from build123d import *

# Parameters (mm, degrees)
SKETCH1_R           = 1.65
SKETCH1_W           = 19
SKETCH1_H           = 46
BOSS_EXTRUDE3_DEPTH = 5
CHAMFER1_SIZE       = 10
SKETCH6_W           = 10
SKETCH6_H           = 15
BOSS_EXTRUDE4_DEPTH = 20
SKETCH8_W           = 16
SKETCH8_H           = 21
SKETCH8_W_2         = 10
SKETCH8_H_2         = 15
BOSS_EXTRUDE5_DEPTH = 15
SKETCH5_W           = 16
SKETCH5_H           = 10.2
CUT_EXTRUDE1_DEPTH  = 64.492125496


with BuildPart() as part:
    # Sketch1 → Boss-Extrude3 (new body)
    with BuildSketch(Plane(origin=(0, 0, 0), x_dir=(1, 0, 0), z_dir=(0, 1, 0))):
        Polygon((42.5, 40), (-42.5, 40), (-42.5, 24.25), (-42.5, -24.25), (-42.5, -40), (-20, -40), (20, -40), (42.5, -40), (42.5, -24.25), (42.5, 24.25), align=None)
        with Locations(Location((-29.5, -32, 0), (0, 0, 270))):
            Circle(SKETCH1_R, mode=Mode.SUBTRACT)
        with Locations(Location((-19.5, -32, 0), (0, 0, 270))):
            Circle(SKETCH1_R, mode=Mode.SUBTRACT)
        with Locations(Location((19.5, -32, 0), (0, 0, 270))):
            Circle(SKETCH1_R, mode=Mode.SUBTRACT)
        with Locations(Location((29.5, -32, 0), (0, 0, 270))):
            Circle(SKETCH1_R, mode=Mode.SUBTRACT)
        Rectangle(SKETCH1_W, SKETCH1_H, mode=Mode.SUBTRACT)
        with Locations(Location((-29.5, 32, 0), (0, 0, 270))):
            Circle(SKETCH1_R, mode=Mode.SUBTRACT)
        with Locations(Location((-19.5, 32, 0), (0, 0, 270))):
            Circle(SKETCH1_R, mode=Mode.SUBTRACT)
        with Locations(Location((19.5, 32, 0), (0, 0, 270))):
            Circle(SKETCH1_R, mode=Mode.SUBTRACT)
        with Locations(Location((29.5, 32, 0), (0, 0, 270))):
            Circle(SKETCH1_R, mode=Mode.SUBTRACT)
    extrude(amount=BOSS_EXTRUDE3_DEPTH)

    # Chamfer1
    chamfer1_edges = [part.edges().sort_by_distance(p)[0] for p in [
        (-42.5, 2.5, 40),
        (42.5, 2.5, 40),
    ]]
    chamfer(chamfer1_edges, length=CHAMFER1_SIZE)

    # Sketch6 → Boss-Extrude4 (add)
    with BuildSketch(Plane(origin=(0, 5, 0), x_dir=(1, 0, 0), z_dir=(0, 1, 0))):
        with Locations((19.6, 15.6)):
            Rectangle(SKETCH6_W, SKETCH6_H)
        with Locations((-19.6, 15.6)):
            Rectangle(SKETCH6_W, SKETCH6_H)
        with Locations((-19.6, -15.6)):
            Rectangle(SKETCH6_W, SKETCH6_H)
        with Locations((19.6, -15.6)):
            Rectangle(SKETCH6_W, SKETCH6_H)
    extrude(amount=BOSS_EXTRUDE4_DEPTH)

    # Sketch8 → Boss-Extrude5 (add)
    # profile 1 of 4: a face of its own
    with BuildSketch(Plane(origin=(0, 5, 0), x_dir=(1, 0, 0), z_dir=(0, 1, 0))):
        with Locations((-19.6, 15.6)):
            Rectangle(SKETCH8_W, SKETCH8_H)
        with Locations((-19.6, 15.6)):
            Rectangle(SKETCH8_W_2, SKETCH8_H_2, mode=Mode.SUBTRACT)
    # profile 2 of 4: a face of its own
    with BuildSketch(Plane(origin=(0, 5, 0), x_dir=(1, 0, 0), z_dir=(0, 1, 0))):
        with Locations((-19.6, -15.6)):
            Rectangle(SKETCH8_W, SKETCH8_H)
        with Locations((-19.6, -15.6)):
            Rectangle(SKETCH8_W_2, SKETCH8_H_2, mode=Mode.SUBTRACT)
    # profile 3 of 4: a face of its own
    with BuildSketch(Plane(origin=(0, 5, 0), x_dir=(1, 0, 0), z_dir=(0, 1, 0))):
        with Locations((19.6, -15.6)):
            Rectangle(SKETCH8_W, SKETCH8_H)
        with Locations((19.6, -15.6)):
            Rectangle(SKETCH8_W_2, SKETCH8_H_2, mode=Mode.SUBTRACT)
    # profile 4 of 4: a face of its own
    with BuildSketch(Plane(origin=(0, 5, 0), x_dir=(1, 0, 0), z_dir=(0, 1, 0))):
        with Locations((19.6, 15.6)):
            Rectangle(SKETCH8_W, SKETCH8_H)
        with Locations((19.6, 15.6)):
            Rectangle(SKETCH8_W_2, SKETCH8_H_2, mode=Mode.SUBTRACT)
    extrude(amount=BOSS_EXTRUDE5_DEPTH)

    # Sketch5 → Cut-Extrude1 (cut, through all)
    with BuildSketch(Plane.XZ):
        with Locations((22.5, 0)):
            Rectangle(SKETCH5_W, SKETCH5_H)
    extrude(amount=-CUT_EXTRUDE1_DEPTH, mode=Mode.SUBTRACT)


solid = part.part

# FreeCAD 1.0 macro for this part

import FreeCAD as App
import Part
import Sketcher
Q = App.Units.Quantity


def edges_at(feature, points):
    """Names of the edges that pass closest to the given points."""
    edges = feature.Shape.Edges
    near = lambda p: min(range(len(edges)), key=lambda i: edges[i].distToShape(Part.Vertex(*p))[0])
    return sorted({f"Edge{near(p) + 1}" for p in points})


def add_polygon(sketch, points):
    """Adds a closed chain of lines whose ends are joined by coincident constraints."""
    first, n = sketch.GeometryCount, len(points)
    for a, b in zip(points, points[1:] + points[:1]):
        sketch.addGeometry(Part.LineSegment(App.Vector(*a, 0), App.Vector(*b, 0)), False)
    for i in range(n):
        sketch.addConstraint(Sketcher.Constraint("Coincident", first + i, 2, first + (i + 1) % n, 1))

doc = App.newDocument("Part")
params = doc.addObject("Spreadsheet::Sheet", "Params")
for row, (alias, value) in enumerate([
    ("sketch1_diameter", "3.3 mm"),
    ("sketch1_width", "85 mm"),
    ("sketch1_width2", "19 mm"),
    ("sketch1_height", "80 mm"),
    ("sketch1_height2", "46 mm"),
    ("pad1_length", "5 mm"),
    ("chamfer_size", "10 mm"),
    ("sketch2_width", "10 mm"),
    ("sketch2_height", "15 mm"),
    ("pad2_length", "20 mm"),
    ("sketch3_width", "16 mm"),
    ("sketch3_width2", "10 mm"),
    ("sketch3_height", "21 mm"),
    ("sketch3_height2", "15 mm"),
    ("pad3_length", "15 mm"),
    ("sketch4_width", "16 mm"),
    ("sketch4_height", "10.2 mm"),
], start=1):
    params.set(f"A{row}", alias)
    params.set(f"B{row}", "=" + value)
    params.setAlias(f"B{row}", alias)

body = doc.addObject("PartDesign::Body", "Body")

# Sketch on XZ plane
sketch1 = doc.addObject("Sketcher::SketchObject", "Sketch")
body.addObject(sketch1)
sketch1.AttachmentSupport = (doc.XZ_Plane, [""])
sketch1.MapMode = "FlatFace"
add_polygon(sketch1, [(42.5, -40), (-42.5, -40), (-42.5, 40), (42.5, 40)])  # lines 0-3
sketch1.addGeometry(Part.Circle(App.Vector(-29.5, 32, 0), App.Vector(0, 0, 1), 1.6), False)  # 4
sketch1.addGeometry(Part.Circle(App.Vector(-19.5, 32, 0), App.Vector(0, 0, 1), 1.6), False)  # 5
sketch1.addGeometry(Part.Circle(App.Vector(19.5, 32, 0), App.Vector(0, 0, 1), 1.6), False)  # 6
sketch1.addGeometry(Part.Circle(App.Vector(29.5, 32, 0), App.Vector(0, 0, 1), 1.6), False)  # 7
sketch1.addGeometry(Part.Circle(App.Vector(-29.5, -32, 0), App.Vector(0, 0, 1), 1.6), False)  # 8
sketch1.addGeometry(Part.Circle(App.Vector(-19.5, -32, 0), App.Vector(0, 0, 1), 1.6), False)  # 9
add_polygon(sketch1, [(9.5, 23), (-9.5, 23), (-9.5, -23), (9.5, -23)])  # lines 10-13
sketch1.addGeometry(Part.Circle(App.Vector(19.5, -32, 0), App.Vector(0, 0, 1), 1.6), False)  # 14
sketch1.addGeometry(Part.Circle(App.Vector(29.5, -32, 0), App.Vector(0, 0, 1), 1.6), False)  # 15
sketch1.addConstraint(Sketcher.Constraint("Horizontal", 0))
sketch1.addConstraint(Sketcher.Constraint("Vertical", 1))
sketch1.addConstraint(Sketcher.Constraint("Horizontal", 2))
sketch1.addConstraint(Sketcher.Constraint("Vertical", 3))
sketch1.addConstraint(Sketcher.Constraint("Horizontal", 10))
sketch1.addConstraint(Sketcher.Constraint("Vertical", 11))
sketch1.addConstraint(Sketcher.Constraint("Horizontal", 12))
sketch1.addConstraint(Sketcher.Constraint("Vertical", 13))
sketch1.addConstraint(Sketcher.Constraint("Equal", 4, 5))
sketch1.addConstraint(Sketcher.Constraint("Equal", 5, 6))
sketch1.addConstraint(Sketcher.Constraint("Equal", 6, 7))
sketch1.addConstraint(Sketcher.Constraint("Equal", 7, 8))
sketch1.addConstraint(Sketcher.Constraint("Equal", 8, 9))
sketch1.addConstraint(Sketcher.Constraint("Equal", 9, 14))
sketch1.addConstraint(Sketcher.Constraint("Equal", 14, 15))
sketch1.addConstraint(Sketcher.Constraint("Symmetric", 7, 3, 8, 3, -1, 1))
sketch1.addConstraint(Sketcher.Constraint("Symmetric", 6, 3, 9, 3, -1, 1))
sketch1.addConstraint(Sketcher.Constraint("Symmetric", 5, 3, 14, 3, -1, 1))
sketch1.addConstraint(Sketcher.Constraint("Symmetric", 4, 3, 15, 3, -1, 1))
sketch1.addConstraint(Sketcher.Constraint("Symmetric", 0, 2, 2, 2, -1, 1))
sketch1.addConstraint(Sketcher.Constraint("Symmetric", 10, 2, 12, 2, -1, 1))
sketch1.addConstraint(Sketcher.Constraint("Symmetric", 5, 3, 6, 3, -2))
sketch1.addConstraint(Sketcher.Constraint("Symmetric", 4, 3, 7, 3, -2))
sketch1.addConstraint(Sketcher.Constraint("Horizontal", 4, 3, 5, 3))
sketch1.addConstraint(Sketcher.Constraint("Diameter", 4, Q("3.3 mm")))
sketch1.addConstraint(Sketcher.Constraint("DistanceX", 0, 2, 0, 1, Q("85 mm")))
sketch1.addConstraint(Sketcher.Constraint("DistanceX", 10, 2, 10, 1, Q("19 mm")))
sketch1.addConstraint(Sketcher.Constraint("DistanceY", 1, 1, 1, 2, Q("80 mm")))
sketch1.addConstraint(Sketcher.Constraint("DistanceY", 11, 2, 11, 1, Q("46 mm")))
sketch1.addConstraint(Sketcher.Constraint("DistanceY", -1, 1, 4, 3, Q("32 mm")))
sketch1.addConstraint(Sketcher.Constraint("DistanceX", 4, 3, 5, 3, Q("10 mm")))
sketch1.addConstraint(Sketcher.Constraint("DistanceX", 5, 3, 6, 3, Q("39 mm")))
sketch1.setExpression("Constraints[32]", "Params.sketch1_diameter")
sketch1.setExpression("Constraints[33]", "Params.sketch1_width")
sketch1.setExpression("Constraints[34]", "Params.sketch1_width2")
sketch1.setExpression("Constraints[35]", "Params.sketch1_height")
sketch1.setExpression("Constraints[36]", "Params.sketch1_height2")
pad1 = doc.addObject("PartDesign::Pad", "Pad")
body.addObject(pad1)
pad1.Profile = sketch1
pad1.setExpression("Length", "Params.pad1_length")
pad1.Reversed = True
doc.recompute()

chamfer = doc.addObject("PartDesign::Chamfer", "Chamfer")
body.addObject(chamfer)
chamfer.Base = (pad1, edges_at(pad1, [(-42.5, 2.5, 40), (42.5, 2.5, 40)]))
chamfer.setExpression("Size", "Params.chamfer_size")

# Sketch on XZ plane
sketch2 = doc.addObject("Sketcher::SketchObject", "Sketch001")
body.addObject(sketch2)
sketch2.AttachmentSupport = (doc.XZ_Plane, [""])
sketch2.MapMode = "FlatFace"
sketch2.AttachmentOffset = App.Placement(App.Vector(0, 0, -5), App.Rotation())
add_polygon(sketch2, [(15, -23), (15, -8), (25, -8), (25, -23)])  # lines 0-3
add_polygon(sketch2, [(-25, -23), (-25, -8), (-15, -8), (-15, -23)])  # lines 4-7
add_polygon(sketch2, [(-25, 8), (-25, 23), (-15, 23), (-15, 8)])  # lines 8-11
add_polygon(sketch2, [(15, 8), (15, 23), (25, 23), (25, 8)])  # lines 12-15
sketch2.addConstraint(Sketcher.Constraint("Vertical", 0))
sketch2.addConstraint(Sketcher.Constraint("Horizontal", 1))
sketch2.addConstraint(Sketcher.Constraint("Vertical", 2))
sketch2.addConstraint(Sketcher.Constraint("Horizontal", 3))
sketch2.addConstraint(Sketcher.Constraint("Vertical", 4))
sketch2.addConstraint(Sketcher.Constraint("Horizontal", 5))
sketch2.addConstraint(Sketcher.Constraint("Vertical", 6))
sketch2.addConstraint(Sketcher.Constraint("Horizontal", 7))
sketch2.addConstraint(Sketcher.Constraint("Vertical", 8))
sketch2.addConstraint(Sketcher.Constraint("Horizontal", 9))
sketch2.addConstraint(Sketcher.Constraint("Vertical", 10))
sketch2.addConstraint(Sketcher.Constraint("Horizontal", 11))
sketch2.addConstraint(Sketcher.Constraint("Vertical", 12))
sketch2.addConstraint(Sketcher.Constraint("Horizontal", 13))
sketch2.addConstraint(Sketcher.Constraint("Vertical", 14))
sketch2.addConstraint(Sketcher.Constraint("Horizontal", 15))
sketch2.addConstraint(Sketcher.Constraint("Symmetric", 2, 2, 8, 2, -1, 1))
sketch2.addConstraint(Sketcher.Constraint("Symmetric", 0, 2, 10, 2, -1, 1))
sketch2.addConstraint(Sketcher.Constraint("Symmetric", 6, 2, 12, 2, -1, 1))
sketch2.addConstraint(Sketcher.Constraint("Symmetric", 4, 2, 14, 2, -1, 1))
sketch2.addConstraint(Sketcher.Constraint("Symmetric", 1, 2, 4, 2, -2))
sketch2.addConstraint(Sketcher.Constraint("Symmetric", 3, 2, 6, 2, -2))
sketch2.addConstraint(Sketcher.Constraint("DistanceX", 1, 1, 1, 2, Q("10 mm")))
sketch2.addConstraint(Sketcher.Constraint("DistanceY", 0, 1, 0, 2, Q("15 mm")))
sketch2.addConstraint(Sketcher.Constraint("DistanceX", -1, 1, 0, 2, Q("14.6 mm")))
sketch2.addConstraint(Sketcher.Constraint("DistanceY", 0, 2, -1, 1, Q("8.1 mm")))
sketch2.setExpression("Constraints[38]", "Params.sketch2_width")
sketch2.setExpression("Constraints[39]", "Params.sketch2_height")
pad2 = doc.addObject("PartDesign::Pad", "Pad001")
body.addObject(pad2)
pad2.Profile = sketch2
pad2.setExpression("Length", "Params.pad2_length")
pad2.Reversed = True

# Sketch on XZ plane
sketch3 = doc.addObject("Sketcher::SketchObject", "Sketch002")
body.addObject(sketch3)
sketch3.AttachmentSupport = (doc.XZ_Plane, [""])
sketch3.MapMode = "FlatFace"
sketch3.AttachmentOffset = App.Placement(App.Vector(0, 0, -5), App.Rotation())
add_polygon(sketch3, [(-28, -26), (-28, -5), (-12, -5), (-12, -26)])  # lines 0-3
add_polygon(sketch3, [(-15, -8), (-25, -8), (-25, -23), (-15, -23)])  # lines 4-7
add_polygon(sketch3, [(-28, 5), (-28, 26), (-12, 26), (-12, 5)])  # lines 8-11
add_polygon(sketch3, [(-15, 23), (-25, 23), (-25, 8), (-15, 8)])  # lines 12-15
add_polygon(sketch3, [(12, 5), (12, 26), (28, 26), (28, 5)])  # lines 16-19
add_polygon(sketch3, [(25, 23), (15, 23), (15, 8), (25, 8)])  # lines 20-23
add_polygon(sketch3, [(12, -26), (12, -5), (28, -5), (28, -26)])  # lines 24-27
add_polygon(sketch3, [(25, -8), (15, -8), (15, -23), (25, -23)])  # lines 28-31
sketch3.addConstraint(Sketcher.Constraint("Vertical", 0))
sketch3.addConstraint(Sketcher.Constraint("Horizontal", 1))
sketch3.addConstraint(Sketcher.Constraint("Vertical", 2))
sketch3.addConstraint(Sketcher.Constraint("Horizontal", 3))
sketch3.addConstraint(Sketcher.Constraint("Horizontal", 4))
sketch3.addConstraint(Sketcher.Constraint("Vertical", 5))
sketch3.addConstraint(Sketcher.Constraint("Horizontal", 6))
sketch3.addConstraint(Sketcher.Constraint("Vertical", 7))
sketch3.addConstraint(Sketcher.Constraint("Vertical", 8))
sketch3.addConstraint(Sketcher.Constraint("Horizontal", 9))
sketch3.addConstraint(Sketcher.Constraint("Vertical", 10))
sketch3.addConstraint(Sketcher.Constraint("Horizontal", 11))
sketch3.addConstraint(Sketcher.Constraint("Horizontal", 12))
sketch3.addConstraint(Sketcher.Constraint("Vertical", 13))
sketch3.addConstraint(Sketcher.Constraint("Horizontal", 14))
sketch3.addConstraint(Sketcher.Constraint("Vertical", 15))
sketch3.addConstraint(Sketcher.Constraint("Vertical", 16))
sketch3.addConstraint(Sketcher.Constraint("Horizontal", 17))
sketch3.addConstraint(Sketcher.Constraint("Vertical", 18))
sketch3.addConstraint(Sketcher.Constraint("Horizontal", 19))
sketch3.addConstraint(Sketcher.Constraint("Horizontal", 20))
sketch3.addConstraint(Sketcher.Constraint("Vertical", 21))
sketch3.addConstraint(Sketcher.Constraint("Horizontal", 22))
sketch3.addConstraint(Sketcher.Constraint("Vertical", 23))
sketch3.addConstraint(Sketcher.Constraint("Vertical", 24))
sketch3.addConstraint(Sketcher.Constraint("Horizontal", 25))
sketch3.addConstraint(Sketcher.Constraint("Vertical", 26))
sketch3.addConstraint(Sketcher.Constraint("Horizontal", 27))
sketch3.addConstraint(Sketcher.Constraint("Horizontal", 28))
sketch3.addConstraint(Sketcher.Constraint("Vertical", 29))
sketch3.addConstraint(Sketcher.Constraint("Horizontal", 30))
sketch3.addConstraint(Sketcher.Constraint("Vertical", 31))
sketch3.addConstraint(Sketcher.Constraint("Symmetric", 2, 2, 16, 2, -1, 1))
sketch3.addConstraint(Sketcher.Constraint("Symmetric", 0, 2, 18, 2, -1, 1))
sketch3.addConstraint(Sketcher.Constraint("Symmetric", 6, 2, 20, 2, -1, 1))
sketch3.addConstraint(Sketcher.Constraint("Symmetric", 4, 2, 22, 2, -1, 1))
sketch3.addConstraint(Sketcher.Constraint("Symmetric", 10, 2, 24, 2, -1, 1))
sketch3.addConstraint(Sketcher.Constraint("Symmetric", 8, 2, 26, 2, -1, 1))
sketch3.addConstraint(Sketcher.Constraint("Symmetric", 14, 2, 28, 2, -1, 1))
sketch3.addConstraint(Sketcher.Constraint("Symmetric", 12, 2, 30, 2, -1, 1))
sketch3.addConstraint(Sketcher.Constraint("Symmetric", 9, 2, 16, 2, -2))
sketch3.addConstraint(Sketcher.Constraint("Symmetric", 11, 2, 18, 2, -2))
sketch3.addConstraint(Sketcher.Constraint("Symmetric", 15, 2, 20, 2, -2))
sketch3.addConstraint(Sketcher.Constraint("Symmetric", 13, 2, 22, 2, -2))
sketch3.addConstraint(Sketcher.Constraint("DistanceX", 1, 1, 1, 2, Q("16 mm")))
sketch3.addConstraint(Sketcher.Constraint("DistanceX", 4, 2, 4, 1, Q("10 mm")))
sketch3.addConstraint(Sketcher.Constraint("DistanceY", 0, 1, 0, 2, Q("21 mm")))
sketch3.addConstraint(Sketcher.Constraint("DistanceY", 5, 2, 5, 1, Q("15 mm")))
sketch3.addConstraint(Sketcher.Constraint("DistanceX", 0, 2, 4, 2, Q("3 mm")))
sketch3.addConstraint(Sketcher.Constraint("DistanceY", 4, 2, 0, 2, Q("3 mm")))
sketch3.addConstraint(Sketcher.Constraint("DistanceX", 0, 2, -1, 1, Q("27.6 mm")))
sketch3.addConstraint(Sketcher.Constraint("DistanceY", 0, 2, -1, 1, Q("5.1 mm")))
sketch3.setExpression("Constraints[76]", "Params.sketch3_width")
sketch3.setExpression("Constraints[77]", "Params.sketch3_width2")
sketch3.setExpression("Constraints[78]", "Params.sketch3_height")
sketch3.setExpression("Constraints[79]", "Params.sketch3_height2")
pad3 = doc.addObject("PartDesign::Pad", "Pad002")
body.addObject(pad3)
pad3.Profile = sketch3
pad3.setExpression("Length", "Params.pad3_length")
pad3.Reversed = True

# Sketch on XZ plane
sketch4 = doc.addObject("Sketcher::SketchObject", "Sketch003")
body.addObject(sketch4)
sketch4.AttachmentSupport = (doc.XZ_Plane, [""])
sketch4.MapMode = "FlatFace"
add_polygon(sketch4, [(14, 5), (14, -5), (30, -5), (30, 5)])  # lines 0-3
sketch4.addConstraint(Sketcher.Constraint("Vertical", 0))
sketch4.addConstraint(Sketcher.Constraint("Horizontal", 1))
sketch4.addConstraint(Sketcher.Constraint("Vertical", 2))
sketch4.addConstraint(Sketcher.Constraint("Horizontal", 3))
sketch4.addConstraint(Sketcher.Constraint("DistanceX", 1, 1, 1, 2, Q("16 mm")))
sketch4.addConstraint(Sketcher.Constraint("DistanceY", 0, 2, 0, 1, Q("10.2 mm")))
sketch4.addConstraint(Sketcher.Constraint("DistanceX", -1, 1, 0, 2, Q("14.5 mm")))
sketch4.addConstraint(Sketcher.Constraint("DistanceY", 0, 2, -1, 1, Q("5.1 mm")))
sketch4.setExpression("Constraints[8]", "Params.sketch4_width")
sketch4.setExpression("Constraints[9]", "Params.sketch4_height")
pocket1 = doc.addObject("PartDesign::Pocket", "Pocket")
body.addObject(pocket1)
pocket1.Profile = sketch4
pocket1.Type = "ThroughAll"

doc.recompute()
